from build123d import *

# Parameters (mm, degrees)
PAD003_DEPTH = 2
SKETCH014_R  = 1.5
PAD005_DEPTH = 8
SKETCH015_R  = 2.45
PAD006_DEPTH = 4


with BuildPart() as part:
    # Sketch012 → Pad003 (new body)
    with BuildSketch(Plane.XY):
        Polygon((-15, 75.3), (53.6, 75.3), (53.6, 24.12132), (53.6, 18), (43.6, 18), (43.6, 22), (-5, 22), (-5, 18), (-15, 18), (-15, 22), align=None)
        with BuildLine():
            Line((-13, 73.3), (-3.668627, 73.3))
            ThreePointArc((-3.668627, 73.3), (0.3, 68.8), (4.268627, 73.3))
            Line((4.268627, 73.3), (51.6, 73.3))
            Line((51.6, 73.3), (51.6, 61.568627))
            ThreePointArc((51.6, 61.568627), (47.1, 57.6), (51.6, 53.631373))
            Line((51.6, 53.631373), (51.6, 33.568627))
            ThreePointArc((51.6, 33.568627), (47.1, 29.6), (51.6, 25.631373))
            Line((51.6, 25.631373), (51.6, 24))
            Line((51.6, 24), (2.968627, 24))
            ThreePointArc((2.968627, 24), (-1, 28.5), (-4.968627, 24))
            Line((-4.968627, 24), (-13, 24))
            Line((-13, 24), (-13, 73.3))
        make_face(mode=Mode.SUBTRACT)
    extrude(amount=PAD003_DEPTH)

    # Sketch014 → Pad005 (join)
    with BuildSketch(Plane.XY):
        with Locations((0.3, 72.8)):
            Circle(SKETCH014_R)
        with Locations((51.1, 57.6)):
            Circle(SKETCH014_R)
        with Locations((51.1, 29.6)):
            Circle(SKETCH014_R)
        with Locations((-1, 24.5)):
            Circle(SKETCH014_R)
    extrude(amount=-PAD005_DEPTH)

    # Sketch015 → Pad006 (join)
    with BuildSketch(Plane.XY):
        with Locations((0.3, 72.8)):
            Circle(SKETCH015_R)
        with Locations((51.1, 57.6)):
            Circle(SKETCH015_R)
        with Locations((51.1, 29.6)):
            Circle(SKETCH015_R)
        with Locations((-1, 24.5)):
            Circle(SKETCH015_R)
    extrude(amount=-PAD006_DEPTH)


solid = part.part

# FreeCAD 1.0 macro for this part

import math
import FreeCAD as App
import Part
import Sketcher

V = App.Vector


def add_polygon(sketch, points):
    """Adds a closed chain of lines whose ends are joined by coincident constraints."""
    first, n = sketch.GeometryCount, len(points)
    for a, b in zip(points, points[1:] + points[:1]):
        sketch.addGeometry(Part.LineSegment(App.Vector(*a, 0), App.Vector(*b, 0)), False)
    for i in range(n):
        sketch.addConstraint(Sketcher.Constraint("Coincident", first + i, 2, first + (i + 1) % n, 1))

doc = App.newDocument("Part")
params = doc.addObject("Spreadsheet::Sheet", "Params")
for row, (alias, value) in enumerate([
    ("sketch1_radius", "4 mm"),
    ("sketch1_width", "10 mm"),
    ("sketch1_height", "4 mm"),
    ("sketch1_width2", "68.6 mm"),
    ("sketch1_height2", "57.3 mm"),
    ("pad1_length", "2 mm"),
    ("sketch2_diameter", "3 mm"),
    ("pad2_length", "8 mm"),
    ("sketch3_diameter", "4.9 mm"),
    ("pad3_length", "4 mm"),
], start=1):
    params.set(f"A{row}", alias)
    params.set(f"B{row}", "=" + value)
    params.setAlias(f"B{row}", alias)

body = doc.addObject("PartDesign::Body", "Body")

sketch1 = body.newObject("Sketcher::SketchObject", "Sketch")
sketch1.AttachmentSupport = (doc.getObject("XY_Plane"), [""])
sketch1.MapMode = "FlatFace"
add_polygon(sketch1, [(53.6, 75.3), (-15, 75.3), (-15, 18), (-5, 18), (-5, 22), (43.6, 22), (43.6, 18), (53.6, 18)])
sketch1.addGeometry(Part.LineSegment(V(-13, 73.3, 0), V(-3.7, 73.3, 0)), False)
sketch1.addGeometry(Part.ArcOfCircle(Part.Circle(V(0.3, 72.8, 0), V(0, 0, 1), 4), math.radians(173), math.radians(367)), False)
sketch1.addGeometry(Part.LineSegment(V(4.3, 73.3, 0), V(51.6, 73.3, 0)), False)
sketch1.addGeometry(Part.LineSegment(V(51.6, 73.3, 0), V(51.6, 61.6, 0)), False)
sketch1.addGeometry(Part.ArcOfCircle(Part.Circle(V(51.1, 57.6, 0), V(0, 0, 1), 4), math.radians(83), math.radians(277)), False)
sketch1.addGeometry(Part.LineSegment(V(51.6, 53.6, 0), V(51.6, 33.6, 0)), False)
sketch1.addGeometry(Part.ArcOfCircle(Part.Circle(V(51.1, 29.6, 0), V(0, 0, 1), 4), math.radians(83), math.radians(277)), False)
sketch1.addGeometry(Part.LineSegment(V(51.6, 25.6, 0), V(51.6, 24, 0)), False)
sketch1.addGeometry(Part.LineSegment(V(51.6, 24, 0), V(3, 24, 0)), False)
sketch1.addGeometry(Part.ArcOfCircle(Part.Circle(V(-1, 24.5, 0), V(0, 0, 1), 4), math.radians(-7), math.radians(187)), False)
sketch1.addGeometry(Part.LineSegment(V(-5, 24, 0), V(-13, 24, 0)), False)
sketch1.addGeometry(Part.LineSegment(V(-13, 24, 0), V(-13, 73.3, 0)), False)
sketch1.addConstraint(Sketcher.Constraint("Coincident", 8, 2, 9, 1))
sketch1.addConstraint(Sketcher.Constraint("Coincident", 9, 2, 10, 1))
sketch1.addConstraint(Sketcher.Constraint("Coincident", 10, 2, 11, 1))
sketch1.addConstraint(Sketcher.Constraint("Coincident", 11, 2, 12, 1))
sketch1.addConstraint(Sketcher.Constraint("Coincident", 12, 2, 13, 1))
sketch1.addConstraint(Sketcher.Constraint("Coincident", 13, 2, 14, 1))
sketch1.addConstraint(Sketcher.Constraint("Coincident", 14, 2, 15, 1))
sketch1.addConstraint(Sketcher.Constraint("Coincident", 15, 2, 16, 1))
sketch1.addConstraint(Sketcher.Constraint("Coincident", 16, 2, 17, 1))
sketch1.addConstraint(Sketcher.Constraint("Coincident", 17, 2, 18, 1))
sketch1.addConstraint(Sketcher.Constraint("Coincident", 18, 2, 19, 1))
sketch1.addConstraint(Sketcher.Constraint("Coincident", 19, 2, 8, 1))
sketch1.addConstraint(Sketcher.Constraint("Horizontal", 0))
sketch1.addConstraint(Sketcher.Constraint("Vertical", 1))
sketch1.addConstraint(Sketcher.Constraint("Horizontal", 2))
sketch1.addConstraint(Sketcher.Constraint("Vertical", 3))
sketch1.addConstraint(Sketcher.Constraint("Horizontal", 4))
sketch1.addConstraint(Sketcher.Constraint("Vertical", 5))
sketch1.addConstraint(Sketcher.Constraint("Horizontal", 6))
sketch1.addConstraint(Sketcher.Constraint("Vertical", 7))
sketch1.addConstraint(Sketcher.Constraint("Horizontal", 8))
sketch1.addConstraint(Sketcher.Constraint("Horizontal", 10))
sketch1.addConstraint(Sketcher.Constraint("Vertical", 11))
sketch1.addConstraint(Sketcher.Constraint("Vertical", 13))
sketch1.addConstraint(Sketcher.Constraint("Vertical", 15))
sketch1.addConstraint(Sketcher.Constraint("Horizontal", 16))
sketch1.addConstraint(Sketcher.Constraint("Horizontal", 18))
sketch1.addConstraint(Sketcher.Constraint("Vertical", 19))
sketch1.addConstraint(Sketcher.Constraint("Equal", 9, 12))
sketch1.addConstraint(Sketcher.Constraint("Equal", 12, 14))
sketch1.addConstraint(Sketcher.Constraint("Equal", 14, 17))
sketch1.addConstraint(Sketcher.Constraint("Horizontal", 2, 2, 5, 2))
sketch1.addConstraint(Sketcher.Constraint("Horizontal", 8, 2, 9, 2))
sketch1.addConstraint(Sketcher.Constraint("Horizontal", 16, 2, 17, 2))
sketch1.addConstraint(Sketcher.Constraint("Vertical", 12, 3, 14, 3))
sketch1.addConstraint(Sketcher.Constraint("Vertical", 11, 2, 12, 2))
sketch1.addConstraint(Sketcher.Constraint("Vertical", 13, 2, 14, 2))
sketch1.addConstraint(Sketcher.Constraint("Equal", 2, 6))
sketch1.addConstraint(Sketcher.Constraint("Radius", 9, 4.0))
sketch1.addConstraint(Sketcher.Constraint("DistanceX", 2, 1, 2, 2, 10.0))
sketch1.addConstraint(Sketcher.Constraint("DistanceY", 3, 1, 3, 2, 4.0))
sketch1.addConstraint(Sketcher.Constraint("DistanceX", 0, 2, 0, 1, 68.6))
sketch1.addConstraint(Sketcher.Constraint("DistanceY", 1, 2, 1, 1, 57.3))
sketch1.addConstraint(Sketcher.Constraint("DistanceY", 19, 1, 19, 2, 49.3))
sketch1.addConstraint(Sketcher.Constraint("DistanceX", 17, 3, -1, 1, 1.0))
sketch1.addConstraint(Sketcher.Constraint("DistanceX", 0, 2, -1, 1, 15.0))
sketch1.addConstraint(Sketcher.Constraint("DistanceY", -1, 1, 1, 2, 18.0))
sketch1.addConstraint(Sketcher.Constraint("DistanceY", -1, 1, 15, 2, 24.0))
sketch1.addConstraint(Sketcher.Constraint("DistanceX", 18, 2, -1, 1, 13.0))
sketch1.addConstraint(Sketcher.Constraint("DistanceY", 14, 3, 12, 3, 28.0))
sketch1.addConstraint(Sketcher.Constraint("DistanceX", 10, 2, 7, 2, 2.0))
sketch1.addConstraint(Sketcher.Constraint("DistanceX", -1, 1, 9, 3, 0.3))
sketch1.addConstraint(Sketcher.Constraint("DistanceY", -1, 1, 9, 3, 72.8))
sketch1.addConstraint(Sketcher.Constraint("DistanceX", -1, 1, 12, 3, 51.1))
sketch1.addConstraint(Sketcher.Constraint("DistanceY", -1, 1, 12, 3, 57.6))
sketch1.addConstraint(Sketcher.Constraint("DistanceY", -1, 1, 17, 3, 24.5))
sketch1.setExpression("Constraints[46]", "Params.sketch1_radius")
sketch1.setExpression("Constraints[47]", "Params.sketch1_width")
sketch1.setExpression("Constraints[48]", "Params.sketch1_height")
sketch1.setExpression("Constraints[49]", "Params.sketch1_width2")
sketch1.setExpression("Constraints[50]", "Params.sketch1_height2")
pad1 = body.newObject("PartDesign::Pad", "Pad")
pad1.Profile = sketch1
pad1.setExpression("Length", "Params.pad1_length")

sketch2 = body.newObject("Sketcher::SketchObject", "Sketch001")
sketch2.AttachmentSupport = (doc.getObject("XY_Plane"), [""])
sketch2.MapMode = "FlatFace"
sketch2.addGeometry(Part.Circle(V(0.3, 72.8, 0), V(0, 0, 1), 1.5), False)
sketch2.addGeometry(Part.Circle(V(51.1, 57.6, 0), V(0, 0, 1), 1.5), False)
sketch2.addGeometry(Part.Circle(V(51.1, 29.6, 0), V(0, 0, 1), 1.5), False)
sketch2.addGeometry(Part.Circle(V(-1, 24.5, 0), V(0, 0, 1), 1.5), False)
sketch2.addConstraint(Sketcher.Constraint("Equal", 0, 1))
sketch2.addConstraint(Sketcher.Constraint("Equal", 1, 2))
sketch2.addConstraint(Sketcher.Constraint("Equal", 2, 3))
sketch2.addConstraint(Sketcher.Constraint("Vertical", 1, 3, 2, 3))
sketch2.addConstraint(Sketcher.Constraint("Diameter", 0, 3.0))
sketch2.addConstraint(Sketcher.Constraint("DistanceX", 3, 3, -1, 1, 1.0))
sketch2.addConstraint(Sketcher.Constraint("DistanceY", 2, 3, 1, 3, 28.0))
sketch2.addConstraint(Sketcher.Constraint("DistanceX", -1, 1, 0, 3, 0.3))
sketch2.addConstraint(Sketcher.Constraint("DistanceY", -1, 1, 0, 3, 72.8))
sketch2.addConstraint(Sketcher.Constraint("DistanceX", -1, 1, 1, 3, 51.1))
sketch2.addConstraint(Sketcher.Constraint("DistanceY", -1, 1, 1, 3, 57.6))
sketch2.addConstraint(Sketcher.Constraint("DistanceY", -1, 1, 3, 3, 24.5))
sketch2.setExpression("Constraints[4]", "Params.sketch2_diameter")
pad2 = body.newObject("PartDesign::Pad", "Pad001")
pad2.Profile = sketch2
pad2.setExpression("Length", "Params.pad2_length")
pad2.Reversed = True

sketch3 = body.newObject("Sketcher::SketchObject", "Sketch002")
sketch3.AttachmentSupport = (doc.getObject("XY_Plane"), [""])
sketch3.MapMode = "FlatFace"
sketch3.addGeometry(Part.Circle(V(0.3, 72.8, 0), V(0, 0, 1), 2.5), False)
sketch3.addGeometry(Part.Circle(V(51.1, 57.6, 0), V(0, 0, 1), 2.5), False)
sketch3.addGeometry(Part.Circle(V(51.1, 29.6, 0), V(0, 0, 1), 2.5), False)
sketch3.addGeometry(Part.Circle(V(-1, 24.5, 0), V(0, 0, 1), 2.5), False)
sketch3.addConstraint(Sketcher.Constraint("Equal", 0, 1))
sketch3.addConstraint(Sketcher.Constraint("Equal", 1, 2))
sketch3.addConstraint(Sketcher.Constraint("Equal", 2, 3))
sketch3.addConstraint(Sketcher.Constraint("Vertical", 1, 3, 2, 3))
sketch3.addConstraint(Sketcher.Constraint("Diameter", 0, 4.9))
sketch3.addConstraint(Sketcher.Constraint("DistanceX", 3, 3, -1, 1, 1.0))
sketch3.addConstraint(Sketcher.Constraint("DistanceY", 2, 3, 1, 3, 28.0))
sketch3.addConstraint(Sketcher.Constraint("DistanceX", -1, 1, 0, 3, 0.3))
sketch3.addConstraint(Sketcher.Constraint("DistanceY", -1, 1, 0, 3, 72.8))
sketch3.addConstraint(Sketcher.Constraint("DistanceX", -1, 1, 1, 3, 51.1))
sketch3.addConstraint(Sketcher.Constraint("DistanceY", -1, 1, 1, 3, 57.6))
sketch3.addConstraint(Sketcher.Constraint("DistanceY", -1, 1, 3, 3, 24.5))
sketch3.setExpression("Constraints[4]", "Params.sketch3_diameter")
pad3 = body.newObject("PartDesign::Pad", "Pad002")
pad3.Profile = sketch3
pad3.setExpression("Length", "Params.pad3_length")
pad3.Reversed = True

doc.recompute()
